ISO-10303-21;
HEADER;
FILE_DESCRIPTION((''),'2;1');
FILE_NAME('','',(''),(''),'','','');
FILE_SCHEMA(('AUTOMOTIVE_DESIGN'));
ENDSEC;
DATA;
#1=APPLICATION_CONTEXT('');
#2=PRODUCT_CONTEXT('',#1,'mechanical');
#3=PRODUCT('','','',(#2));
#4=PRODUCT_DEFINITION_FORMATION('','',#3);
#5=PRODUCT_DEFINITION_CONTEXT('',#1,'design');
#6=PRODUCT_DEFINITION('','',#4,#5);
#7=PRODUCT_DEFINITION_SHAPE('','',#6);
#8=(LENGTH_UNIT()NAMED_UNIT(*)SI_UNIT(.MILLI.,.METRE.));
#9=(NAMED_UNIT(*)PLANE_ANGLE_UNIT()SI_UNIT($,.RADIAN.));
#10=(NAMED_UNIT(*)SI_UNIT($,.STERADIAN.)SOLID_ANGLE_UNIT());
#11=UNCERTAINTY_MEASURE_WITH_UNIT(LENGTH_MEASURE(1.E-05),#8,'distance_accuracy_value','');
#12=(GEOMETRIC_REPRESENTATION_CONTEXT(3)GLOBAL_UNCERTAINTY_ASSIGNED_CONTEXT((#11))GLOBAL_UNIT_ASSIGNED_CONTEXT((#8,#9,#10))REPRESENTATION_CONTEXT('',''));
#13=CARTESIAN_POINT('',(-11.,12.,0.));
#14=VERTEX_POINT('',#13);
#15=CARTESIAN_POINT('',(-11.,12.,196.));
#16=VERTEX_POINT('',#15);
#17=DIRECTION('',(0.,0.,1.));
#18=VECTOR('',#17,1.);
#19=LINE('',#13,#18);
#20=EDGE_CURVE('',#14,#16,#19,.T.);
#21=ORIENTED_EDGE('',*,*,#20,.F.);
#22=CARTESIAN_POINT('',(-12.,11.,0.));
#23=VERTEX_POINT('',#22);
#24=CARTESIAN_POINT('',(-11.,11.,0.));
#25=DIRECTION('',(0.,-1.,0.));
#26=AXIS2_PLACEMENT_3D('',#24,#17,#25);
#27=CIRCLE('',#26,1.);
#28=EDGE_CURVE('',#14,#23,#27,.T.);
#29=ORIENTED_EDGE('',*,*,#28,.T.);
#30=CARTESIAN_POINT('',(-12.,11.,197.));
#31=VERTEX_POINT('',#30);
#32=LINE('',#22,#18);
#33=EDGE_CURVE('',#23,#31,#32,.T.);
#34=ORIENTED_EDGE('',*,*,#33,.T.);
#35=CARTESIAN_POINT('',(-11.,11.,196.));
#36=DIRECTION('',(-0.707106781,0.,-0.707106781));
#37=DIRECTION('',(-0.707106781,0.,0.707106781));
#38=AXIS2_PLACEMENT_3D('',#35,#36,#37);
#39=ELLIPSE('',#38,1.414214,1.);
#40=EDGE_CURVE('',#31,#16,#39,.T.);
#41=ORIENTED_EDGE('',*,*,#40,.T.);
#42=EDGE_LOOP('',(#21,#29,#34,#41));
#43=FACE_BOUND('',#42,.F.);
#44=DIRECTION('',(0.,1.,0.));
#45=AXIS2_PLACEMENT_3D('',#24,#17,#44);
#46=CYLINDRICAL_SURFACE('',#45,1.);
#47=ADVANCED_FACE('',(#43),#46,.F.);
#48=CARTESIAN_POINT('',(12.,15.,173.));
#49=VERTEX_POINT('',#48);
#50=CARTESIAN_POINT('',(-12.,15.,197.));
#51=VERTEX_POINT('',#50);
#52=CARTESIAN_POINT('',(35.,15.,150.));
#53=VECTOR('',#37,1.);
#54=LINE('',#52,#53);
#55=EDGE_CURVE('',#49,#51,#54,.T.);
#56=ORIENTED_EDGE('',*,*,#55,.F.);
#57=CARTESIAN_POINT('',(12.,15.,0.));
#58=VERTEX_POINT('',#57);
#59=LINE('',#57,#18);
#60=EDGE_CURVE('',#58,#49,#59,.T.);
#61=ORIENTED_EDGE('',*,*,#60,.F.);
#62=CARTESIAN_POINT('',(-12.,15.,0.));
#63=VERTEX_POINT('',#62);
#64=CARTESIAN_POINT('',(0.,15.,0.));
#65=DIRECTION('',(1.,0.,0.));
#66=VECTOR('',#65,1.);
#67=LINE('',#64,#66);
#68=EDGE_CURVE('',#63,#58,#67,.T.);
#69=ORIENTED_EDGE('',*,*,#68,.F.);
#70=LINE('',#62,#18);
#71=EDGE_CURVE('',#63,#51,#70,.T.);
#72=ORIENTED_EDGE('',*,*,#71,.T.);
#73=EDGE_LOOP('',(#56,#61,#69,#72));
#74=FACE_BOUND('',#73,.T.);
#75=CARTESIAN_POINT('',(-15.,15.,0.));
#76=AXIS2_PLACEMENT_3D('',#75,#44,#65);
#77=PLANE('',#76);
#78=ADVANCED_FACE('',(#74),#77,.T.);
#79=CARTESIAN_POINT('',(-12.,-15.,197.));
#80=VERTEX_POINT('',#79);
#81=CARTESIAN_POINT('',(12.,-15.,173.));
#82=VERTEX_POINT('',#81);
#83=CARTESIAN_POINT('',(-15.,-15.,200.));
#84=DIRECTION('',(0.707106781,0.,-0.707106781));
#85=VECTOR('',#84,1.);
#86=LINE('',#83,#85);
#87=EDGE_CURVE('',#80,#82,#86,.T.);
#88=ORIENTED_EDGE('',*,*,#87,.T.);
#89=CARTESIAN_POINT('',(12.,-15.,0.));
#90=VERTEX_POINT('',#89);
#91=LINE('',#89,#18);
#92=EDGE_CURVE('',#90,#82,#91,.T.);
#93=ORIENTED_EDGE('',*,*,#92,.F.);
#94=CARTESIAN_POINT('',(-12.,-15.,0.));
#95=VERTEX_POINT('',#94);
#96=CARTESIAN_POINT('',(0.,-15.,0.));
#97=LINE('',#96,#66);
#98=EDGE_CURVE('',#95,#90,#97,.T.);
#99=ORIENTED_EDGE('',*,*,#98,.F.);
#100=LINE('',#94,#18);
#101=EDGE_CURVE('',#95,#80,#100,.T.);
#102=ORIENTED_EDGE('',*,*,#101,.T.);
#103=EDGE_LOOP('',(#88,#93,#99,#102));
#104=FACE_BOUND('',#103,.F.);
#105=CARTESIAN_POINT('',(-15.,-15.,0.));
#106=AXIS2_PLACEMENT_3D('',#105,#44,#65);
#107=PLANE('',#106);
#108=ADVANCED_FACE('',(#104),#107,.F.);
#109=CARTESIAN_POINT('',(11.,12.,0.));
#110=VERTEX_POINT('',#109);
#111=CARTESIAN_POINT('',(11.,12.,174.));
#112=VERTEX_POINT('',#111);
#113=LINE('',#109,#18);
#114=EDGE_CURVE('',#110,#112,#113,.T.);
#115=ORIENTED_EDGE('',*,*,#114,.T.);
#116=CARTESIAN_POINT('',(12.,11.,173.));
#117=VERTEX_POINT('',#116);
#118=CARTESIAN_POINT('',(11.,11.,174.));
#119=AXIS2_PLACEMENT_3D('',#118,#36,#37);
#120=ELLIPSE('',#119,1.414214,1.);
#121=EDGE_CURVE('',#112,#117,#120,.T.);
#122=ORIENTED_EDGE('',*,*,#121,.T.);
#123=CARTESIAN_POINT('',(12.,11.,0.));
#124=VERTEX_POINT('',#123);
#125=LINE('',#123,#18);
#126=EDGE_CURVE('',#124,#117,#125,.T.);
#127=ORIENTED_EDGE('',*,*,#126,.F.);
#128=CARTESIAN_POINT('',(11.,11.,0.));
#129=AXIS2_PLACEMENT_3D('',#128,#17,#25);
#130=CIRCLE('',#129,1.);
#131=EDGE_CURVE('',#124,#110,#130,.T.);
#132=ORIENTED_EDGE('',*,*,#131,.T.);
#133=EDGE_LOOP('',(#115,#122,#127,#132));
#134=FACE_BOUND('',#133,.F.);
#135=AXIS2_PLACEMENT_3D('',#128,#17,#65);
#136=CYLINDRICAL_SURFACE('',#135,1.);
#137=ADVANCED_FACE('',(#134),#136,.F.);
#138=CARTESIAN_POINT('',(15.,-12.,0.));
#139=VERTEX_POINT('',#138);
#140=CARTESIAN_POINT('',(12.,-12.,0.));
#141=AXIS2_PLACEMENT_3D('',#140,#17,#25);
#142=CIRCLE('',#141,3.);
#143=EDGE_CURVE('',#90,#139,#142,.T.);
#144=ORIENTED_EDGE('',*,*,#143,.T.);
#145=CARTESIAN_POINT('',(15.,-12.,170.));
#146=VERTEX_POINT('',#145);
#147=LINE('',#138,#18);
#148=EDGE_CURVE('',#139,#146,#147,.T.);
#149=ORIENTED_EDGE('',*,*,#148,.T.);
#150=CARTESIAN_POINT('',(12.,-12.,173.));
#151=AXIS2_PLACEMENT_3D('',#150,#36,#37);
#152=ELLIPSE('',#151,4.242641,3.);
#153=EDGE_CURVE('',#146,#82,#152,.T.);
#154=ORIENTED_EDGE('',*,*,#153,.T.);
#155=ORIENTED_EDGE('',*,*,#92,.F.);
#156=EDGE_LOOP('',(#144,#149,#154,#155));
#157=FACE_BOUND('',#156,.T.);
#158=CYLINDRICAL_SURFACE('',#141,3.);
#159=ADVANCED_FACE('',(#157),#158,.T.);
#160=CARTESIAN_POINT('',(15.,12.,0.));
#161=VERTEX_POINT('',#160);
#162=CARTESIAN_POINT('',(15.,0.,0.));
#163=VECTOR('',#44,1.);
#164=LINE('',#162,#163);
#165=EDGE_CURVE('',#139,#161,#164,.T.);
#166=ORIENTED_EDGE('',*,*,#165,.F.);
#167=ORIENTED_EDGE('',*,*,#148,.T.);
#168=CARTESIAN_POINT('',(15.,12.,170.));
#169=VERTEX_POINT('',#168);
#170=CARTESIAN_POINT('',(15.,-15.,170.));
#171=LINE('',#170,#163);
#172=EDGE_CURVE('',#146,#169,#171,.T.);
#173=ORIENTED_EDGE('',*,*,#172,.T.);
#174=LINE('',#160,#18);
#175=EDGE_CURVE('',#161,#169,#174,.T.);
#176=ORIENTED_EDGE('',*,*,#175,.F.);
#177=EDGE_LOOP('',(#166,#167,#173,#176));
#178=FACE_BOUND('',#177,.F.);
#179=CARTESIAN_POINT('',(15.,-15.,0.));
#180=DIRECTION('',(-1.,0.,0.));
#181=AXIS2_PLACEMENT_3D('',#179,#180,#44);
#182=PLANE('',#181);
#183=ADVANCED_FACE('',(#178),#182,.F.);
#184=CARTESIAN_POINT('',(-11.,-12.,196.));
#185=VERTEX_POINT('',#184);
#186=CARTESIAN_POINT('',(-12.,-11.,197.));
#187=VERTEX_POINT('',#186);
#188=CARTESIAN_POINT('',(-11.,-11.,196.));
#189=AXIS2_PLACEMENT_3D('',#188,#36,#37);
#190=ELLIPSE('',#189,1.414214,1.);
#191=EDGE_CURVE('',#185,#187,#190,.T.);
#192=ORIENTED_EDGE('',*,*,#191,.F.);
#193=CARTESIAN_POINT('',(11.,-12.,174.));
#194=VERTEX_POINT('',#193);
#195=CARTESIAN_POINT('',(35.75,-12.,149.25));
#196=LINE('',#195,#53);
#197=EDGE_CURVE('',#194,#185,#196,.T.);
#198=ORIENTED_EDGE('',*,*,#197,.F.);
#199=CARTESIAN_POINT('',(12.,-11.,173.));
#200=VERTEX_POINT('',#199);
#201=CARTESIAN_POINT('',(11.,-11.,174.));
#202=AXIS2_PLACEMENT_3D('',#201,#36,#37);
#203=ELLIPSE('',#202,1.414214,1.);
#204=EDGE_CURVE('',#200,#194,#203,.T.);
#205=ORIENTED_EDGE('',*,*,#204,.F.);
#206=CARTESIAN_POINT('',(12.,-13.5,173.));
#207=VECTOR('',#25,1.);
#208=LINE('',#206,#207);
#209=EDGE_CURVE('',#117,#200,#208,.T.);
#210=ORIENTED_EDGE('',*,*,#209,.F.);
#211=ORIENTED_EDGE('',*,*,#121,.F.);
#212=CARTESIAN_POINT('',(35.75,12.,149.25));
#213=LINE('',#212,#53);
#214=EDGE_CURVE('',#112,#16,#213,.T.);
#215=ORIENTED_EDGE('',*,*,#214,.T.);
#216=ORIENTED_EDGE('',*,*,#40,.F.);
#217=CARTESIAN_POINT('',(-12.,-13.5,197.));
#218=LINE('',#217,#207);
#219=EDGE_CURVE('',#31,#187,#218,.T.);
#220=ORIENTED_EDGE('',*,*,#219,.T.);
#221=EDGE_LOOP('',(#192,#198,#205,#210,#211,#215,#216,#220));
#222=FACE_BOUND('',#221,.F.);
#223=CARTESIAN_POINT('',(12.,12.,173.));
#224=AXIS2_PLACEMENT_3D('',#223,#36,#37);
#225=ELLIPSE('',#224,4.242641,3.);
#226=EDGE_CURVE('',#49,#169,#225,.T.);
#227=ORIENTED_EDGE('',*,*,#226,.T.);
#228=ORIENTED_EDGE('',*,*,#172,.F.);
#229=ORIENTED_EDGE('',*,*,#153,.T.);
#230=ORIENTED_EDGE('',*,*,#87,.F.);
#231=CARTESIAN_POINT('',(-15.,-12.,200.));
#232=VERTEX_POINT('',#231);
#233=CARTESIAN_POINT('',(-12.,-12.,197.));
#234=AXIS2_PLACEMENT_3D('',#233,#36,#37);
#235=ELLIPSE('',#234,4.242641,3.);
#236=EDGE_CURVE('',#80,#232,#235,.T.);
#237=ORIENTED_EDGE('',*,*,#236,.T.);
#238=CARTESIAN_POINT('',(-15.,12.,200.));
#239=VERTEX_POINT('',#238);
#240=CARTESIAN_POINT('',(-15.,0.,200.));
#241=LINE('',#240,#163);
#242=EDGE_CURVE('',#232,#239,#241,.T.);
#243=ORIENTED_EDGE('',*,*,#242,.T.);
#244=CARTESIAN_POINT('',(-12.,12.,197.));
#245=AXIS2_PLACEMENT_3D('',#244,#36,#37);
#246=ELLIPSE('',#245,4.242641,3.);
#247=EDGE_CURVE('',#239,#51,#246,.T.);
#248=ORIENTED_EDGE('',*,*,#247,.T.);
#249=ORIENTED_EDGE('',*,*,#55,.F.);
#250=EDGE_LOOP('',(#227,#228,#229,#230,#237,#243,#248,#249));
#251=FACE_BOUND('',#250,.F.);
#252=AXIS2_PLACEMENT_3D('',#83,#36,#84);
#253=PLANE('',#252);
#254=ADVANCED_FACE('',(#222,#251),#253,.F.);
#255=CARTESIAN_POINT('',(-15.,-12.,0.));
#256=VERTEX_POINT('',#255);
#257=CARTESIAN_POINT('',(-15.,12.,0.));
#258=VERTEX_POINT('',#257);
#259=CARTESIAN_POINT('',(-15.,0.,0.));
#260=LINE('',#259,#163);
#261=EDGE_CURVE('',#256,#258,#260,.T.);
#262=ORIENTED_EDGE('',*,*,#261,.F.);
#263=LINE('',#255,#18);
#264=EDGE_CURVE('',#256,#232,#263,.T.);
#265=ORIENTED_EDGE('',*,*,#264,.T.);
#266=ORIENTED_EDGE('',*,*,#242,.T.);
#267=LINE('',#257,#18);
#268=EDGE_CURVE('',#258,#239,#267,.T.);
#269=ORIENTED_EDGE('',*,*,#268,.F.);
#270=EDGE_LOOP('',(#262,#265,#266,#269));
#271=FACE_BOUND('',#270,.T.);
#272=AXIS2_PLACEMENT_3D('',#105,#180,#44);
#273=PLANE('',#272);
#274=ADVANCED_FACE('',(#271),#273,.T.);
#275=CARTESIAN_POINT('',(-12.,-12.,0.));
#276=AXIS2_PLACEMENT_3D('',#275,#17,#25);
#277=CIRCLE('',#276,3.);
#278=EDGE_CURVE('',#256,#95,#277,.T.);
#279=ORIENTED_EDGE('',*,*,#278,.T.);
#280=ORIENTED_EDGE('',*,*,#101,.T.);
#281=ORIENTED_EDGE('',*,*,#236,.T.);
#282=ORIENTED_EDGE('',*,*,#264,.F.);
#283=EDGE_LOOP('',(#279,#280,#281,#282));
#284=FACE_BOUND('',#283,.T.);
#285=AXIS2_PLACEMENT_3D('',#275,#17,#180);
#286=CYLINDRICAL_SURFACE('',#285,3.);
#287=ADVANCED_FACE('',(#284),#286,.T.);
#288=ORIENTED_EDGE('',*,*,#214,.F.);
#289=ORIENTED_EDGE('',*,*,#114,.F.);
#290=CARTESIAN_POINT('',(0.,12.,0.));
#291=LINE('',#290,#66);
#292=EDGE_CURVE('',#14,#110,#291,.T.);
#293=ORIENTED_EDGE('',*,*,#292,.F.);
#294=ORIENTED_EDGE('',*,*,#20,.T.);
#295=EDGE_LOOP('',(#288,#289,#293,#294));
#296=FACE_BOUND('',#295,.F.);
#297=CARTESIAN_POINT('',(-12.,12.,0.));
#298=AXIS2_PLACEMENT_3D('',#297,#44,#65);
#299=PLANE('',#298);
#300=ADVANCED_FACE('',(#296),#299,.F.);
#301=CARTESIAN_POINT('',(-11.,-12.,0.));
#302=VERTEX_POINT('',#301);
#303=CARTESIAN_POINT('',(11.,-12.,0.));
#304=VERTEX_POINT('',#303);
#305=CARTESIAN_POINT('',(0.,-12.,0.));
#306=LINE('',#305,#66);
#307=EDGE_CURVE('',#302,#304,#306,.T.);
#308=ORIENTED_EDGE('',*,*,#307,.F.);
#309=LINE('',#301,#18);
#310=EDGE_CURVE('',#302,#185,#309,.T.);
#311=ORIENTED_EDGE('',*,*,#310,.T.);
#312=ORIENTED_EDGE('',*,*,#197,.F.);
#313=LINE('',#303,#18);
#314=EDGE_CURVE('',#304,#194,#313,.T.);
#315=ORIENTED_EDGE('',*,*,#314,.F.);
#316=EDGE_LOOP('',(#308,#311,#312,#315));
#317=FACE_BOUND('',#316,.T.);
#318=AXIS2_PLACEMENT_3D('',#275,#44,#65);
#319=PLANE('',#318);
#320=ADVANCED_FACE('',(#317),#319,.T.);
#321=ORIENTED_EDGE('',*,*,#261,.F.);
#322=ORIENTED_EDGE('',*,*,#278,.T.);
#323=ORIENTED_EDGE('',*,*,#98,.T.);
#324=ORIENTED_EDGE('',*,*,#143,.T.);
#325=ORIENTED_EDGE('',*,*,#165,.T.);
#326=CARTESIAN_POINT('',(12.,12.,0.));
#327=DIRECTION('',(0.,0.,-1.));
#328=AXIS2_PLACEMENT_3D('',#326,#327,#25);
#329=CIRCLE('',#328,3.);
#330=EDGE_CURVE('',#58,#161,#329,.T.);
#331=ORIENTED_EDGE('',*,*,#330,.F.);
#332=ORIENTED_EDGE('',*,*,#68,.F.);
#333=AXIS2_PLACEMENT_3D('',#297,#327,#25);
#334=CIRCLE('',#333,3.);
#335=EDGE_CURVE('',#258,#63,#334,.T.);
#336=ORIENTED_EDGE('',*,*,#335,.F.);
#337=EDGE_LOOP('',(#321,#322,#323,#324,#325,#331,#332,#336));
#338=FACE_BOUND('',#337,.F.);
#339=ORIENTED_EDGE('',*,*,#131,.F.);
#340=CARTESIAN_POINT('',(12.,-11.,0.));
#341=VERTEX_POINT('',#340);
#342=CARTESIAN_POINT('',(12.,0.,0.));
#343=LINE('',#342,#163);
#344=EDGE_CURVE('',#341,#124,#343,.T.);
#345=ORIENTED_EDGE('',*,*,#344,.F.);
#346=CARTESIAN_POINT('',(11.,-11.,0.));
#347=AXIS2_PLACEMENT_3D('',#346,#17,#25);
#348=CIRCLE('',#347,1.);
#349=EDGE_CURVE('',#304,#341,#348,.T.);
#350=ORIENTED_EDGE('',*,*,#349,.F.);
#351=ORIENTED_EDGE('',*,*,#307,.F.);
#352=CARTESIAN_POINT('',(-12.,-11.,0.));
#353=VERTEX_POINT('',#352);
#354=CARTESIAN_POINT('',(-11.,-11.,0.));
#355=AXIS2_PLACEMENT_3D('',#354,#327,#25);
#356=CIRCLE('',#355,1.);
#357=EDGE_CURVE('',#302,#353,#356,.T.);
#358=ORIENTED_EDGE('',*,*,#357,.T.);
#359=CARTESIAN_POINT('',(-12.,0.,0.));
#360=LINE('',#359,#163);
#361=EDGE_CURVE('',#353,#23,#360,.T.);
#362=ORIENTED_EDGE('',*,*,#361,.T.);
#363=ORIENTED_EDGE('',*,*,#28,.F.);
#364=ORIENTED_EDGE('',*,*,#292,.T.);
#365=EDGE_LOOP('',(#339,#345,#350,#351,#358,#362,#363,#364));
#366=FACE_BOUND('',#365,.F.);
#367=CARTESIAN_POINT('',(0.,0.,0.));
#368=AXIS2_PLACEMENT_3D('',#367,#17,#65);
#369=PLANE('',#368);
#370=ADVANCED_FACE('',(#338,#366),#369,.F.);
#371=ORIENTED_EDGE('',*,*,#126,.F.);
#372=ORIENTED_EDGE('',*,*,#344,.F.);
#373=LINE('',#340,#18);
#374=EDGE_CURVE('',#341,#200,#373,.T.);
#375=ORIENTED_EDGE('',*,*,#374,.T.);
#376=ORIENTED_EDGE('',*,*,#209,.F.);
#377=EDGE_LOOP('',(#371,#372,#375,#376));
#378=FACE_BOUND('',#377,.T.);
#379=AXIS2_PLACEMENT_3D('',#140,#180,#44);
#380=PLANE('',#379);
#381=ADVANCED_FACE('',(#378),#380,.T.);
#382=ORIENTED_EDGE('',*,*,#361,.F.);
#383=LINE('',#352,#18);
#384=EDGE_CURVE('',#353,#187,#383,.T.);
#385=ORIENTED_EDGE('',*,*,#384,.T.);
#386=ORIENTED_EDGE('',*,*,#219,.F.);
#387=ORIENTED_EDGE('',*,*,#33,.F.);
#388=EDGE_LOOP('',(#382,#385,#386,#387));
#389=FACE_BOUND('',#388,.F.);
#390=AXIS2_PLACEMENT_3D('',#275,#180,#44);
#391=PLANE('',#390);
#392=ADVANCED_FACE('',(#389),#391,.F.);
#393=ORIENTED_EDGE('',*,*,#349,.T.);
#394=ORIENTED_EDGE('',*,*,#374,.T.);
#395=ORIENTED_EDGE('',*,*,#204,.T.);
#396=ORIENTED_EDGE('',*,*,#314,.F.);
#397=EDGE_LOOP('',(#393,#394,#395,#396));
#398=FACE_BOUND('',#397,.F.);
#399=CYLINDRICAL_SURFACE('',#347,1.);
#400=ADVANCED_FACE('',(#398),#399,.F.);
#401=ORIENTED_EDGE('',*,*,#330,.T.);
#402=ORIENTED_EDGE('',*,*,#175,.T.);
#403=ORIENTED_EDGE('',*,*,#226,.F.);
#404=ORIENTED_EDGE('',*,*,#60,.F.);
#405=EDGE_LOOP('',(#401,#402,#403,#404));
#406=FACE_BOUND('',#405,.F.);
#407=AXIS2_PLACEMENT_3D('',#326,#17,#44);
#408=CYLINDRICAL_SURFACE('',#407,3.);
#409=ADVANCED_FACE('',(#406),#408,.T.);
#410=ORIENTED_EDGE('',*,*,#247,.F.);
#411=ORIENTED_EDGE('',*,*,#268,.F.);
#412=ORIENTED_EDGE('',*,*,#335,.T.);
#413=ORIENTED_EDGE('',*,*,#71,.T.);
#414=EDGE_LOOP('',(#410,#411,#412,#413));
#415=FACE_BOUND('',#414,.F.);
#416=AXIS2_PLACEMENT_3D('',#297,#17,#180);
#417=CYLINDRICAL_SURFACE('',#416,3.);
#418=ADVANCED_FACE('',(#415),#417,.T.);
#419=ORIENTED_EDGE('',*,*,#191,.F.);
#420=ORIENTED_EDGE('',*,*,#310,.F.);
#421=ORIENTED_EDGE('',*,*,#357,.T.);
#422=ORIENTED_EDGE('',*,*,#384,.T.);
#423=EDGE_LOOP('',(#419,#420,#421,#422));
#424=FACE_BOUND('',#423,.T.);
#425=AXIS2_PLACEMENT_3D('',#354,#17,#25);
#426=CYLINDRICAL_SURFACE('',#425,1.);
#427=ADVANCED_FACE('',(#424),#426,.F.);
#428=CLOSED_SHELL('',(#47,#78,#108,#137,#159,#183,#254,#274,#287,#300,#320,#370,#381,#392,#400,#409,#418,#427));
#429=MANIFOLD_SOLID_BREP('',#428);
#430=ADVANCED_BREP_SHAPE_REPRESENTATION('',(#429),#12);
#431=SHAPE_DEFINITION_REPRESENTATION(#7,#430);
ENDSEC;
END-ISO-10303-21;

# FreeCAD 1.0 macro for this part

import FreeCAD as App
import Part
import Sketcher
Q = App.Units.Quantity


def edges_at(feature, points):
    """Names of the edges that pass closest to the given points."""
    edges = feature.Shape.Edges
    near = lambda p: min(range(len(edges)), key=lambda i: edges[i].distToShape(Part.Vertex(*p))[0])
    return sorted({f"Edge{near(p) + 1}" for p in points})

doc = App.newDocument("Part")
params = doc.addObject("Spreadsheet::Sheet", "Params")
for row, (alias, value) in enumerate([
    ("sketch1_width", "30 mm"),
    ("sketch1_width2", "24 mm"),
    ("pad1_length", "200 mm"),
    ("fillet_radius", "1 mm"),
    ("fillet2_radius", "3 mm"),
    ("sketch2_width", "30 mm"),
], start=1):
    params.set(f"A{row}", alias)
    params.set(f"B{row}", "=" + value)
    params.setAlias(f"B{row}", alias)

body = doc.addObject("PartDesign::Body", "Body")

# Sketch on XY plane
sketch1 = body.newObject("Sketcher::SketchObject", "Sketch")
sketch1.AttachmentSupport = (doc.getObject("XY_Plane"), [""])
sketch1.MapMode = "FlatFace"
sketch1.addGeometry([
    Part.LineSegment(App.Vector(-15, 15, 0), App.Vector(-15, -15, 0)),  # 0
    Part.LineSegment(App.Vector(-15, -15, 0), App.Vector(15, -15, 0)),  # 1
    Part.LineSegment(App.Vector(15, -15, 0), App.Vector(15, 15, 0)),  # 2
    Part.LineSegment(App.Vector(15, 15, 0), App.Vector(-15, 15, 0)),  # 3
    Part.LineSegment(App.Vector(12, -12, 0), App.Vector(-12, -12, 0)),  # 4
    Part.LineSegment(App.Vector(-12, -12, 0), App.Vector(-12, 12, 0)),  # 5
    Part.LineSegment(App.Vector(-12, 12, 0), App.Vector(12, 12, 0)),  # 6
    Part.LineSegment(App.Vector(12, 12, 0), App.Vector(12, -12, 0)),  # 7
], False)
sketch1.addConstraint([
    Sketcher.Constraint("Coincident", 0, 2, 1, 1),
    Sketcher.Constraint("Coincident", 1, 2, 2, 1),
    Sketcher.Constraint("Coincident", 2, 2, 3, 1),
    Sketcher.Constraint("Coincident", 3, 2, 0, 1),
    Sketcher.Constraint("Coincident", 4, 2, 5, 1),
    Sketcher.Constraint("Coincident", 5, 2, 6, 1),
    Sketcher.Constraint("Coincident", 6, 2, 7, 1),
    Sketcher.Constraint("Coincident", 7, 2, 4, 1),
    Sketcher.Constraint("Vertical", 0),
    Sketcher.Constraint("Horizontal", 1),
    Sketcher.Constraint("Vertical", 2),
    Sketcher.Constraint("Horizontal", 3),
    Sketcher.Constraint("Horizontal", 4),
    Sketcher.Constraint("Vertical", 5),
    Sketcher.Constraint("Horizontal", 6),
    Sketcher.Constraint("Vertical", 7),
    Sketcher.Constraint("Symmetric", 0, 2, 2, 2, -1, 1),
    Sketcher.Constraint("Symmetric", 4, 2, 6, 2, -1, 1),
    Sketcher.Constraint("Equal", 3, 0),
    Sketcher.Constraint("Equal", 6, 5),
    Sketcher.Constraint("DistanceX", 1, 1, 1, 2, Q("30 mm")),
    Sketcher.Constraint("DistanceX", 4, 2, 4, 1, Q("24 mm")),
])
sketch1.setExpression("Constraints[20]", "Params.sketch1_width")
sketch1.setExpression("Constraints[21]", "Params.sketch1_width2")
pad1 = body.newObject("PartDesign::Pad", "Pad")
pad1.Profile = sketch1
pad1.setExpression("Length", "Params.pad1_length")
doc.recompute()

fillet = body.newObject("PartDesign::Fillet", "Fillet")
fillet.Base = (pad1, edges_at(pad1, [
    (-12, -12, 100),
    (-12, 12, 100),
    (12, 12, 100),
    (12, -12, 100),
]))
fillet.setExpression("Radius", "Params.fillet_radius")
doc.recompute()

fillet2 = body.newObject("PartDesign::Fillet", "Fillet001")
fillet2.Base = (fillet, edges_at(fillet, [
    (-15, 15, 100),
    (-15, -15, 100),
    (15, 15, 100),
    (15, -15, 100),
]))
fillet2.setExpression("Radius", "Params.fillet2_radius")

# Sketch on XZ plane
sketch2 = body.newObject("Sketcher::SketchObject", "Sketch001")
sketch2.AttachmentSupport = (doc.getObject("XZ_Plane"), [""])
sketch2.MapMode = "FlatFace"
sketch2.AttachmentOffset = App.Placement(App.Vector(0, 0, 15), App.Rotation())
sketch2.addGeometry([
    Part.LineSegment(App.Vector(-15, 200, 0), App.Vector(15, 170, 0)),
    Part.LineSegment(App.Vector(15, 170, 0), App.Vector(15, 200, 0)),
    Part.LineSegment(App.Vector(15, 200, 0), App.Vector(-15, 200, 0)),
], False)
sketch2.addConstraint([
    Sketcher.Constraint("Coincident", 0, 2, 1, 1),
    Sketcher.Constraint("Coincident", 1, 2, 2, 1),
    Sketcher.Constraint("Coincident", 2, 2, 0, 1),
    Sketcher.Constraint("Vertical", 1),
    Sketcher.Constraint("Horizontal", 2),
    Sketcher.Constraint("Equal", 2, 1),
    Sketcher.Constraint("DistanceX", 2, 2, 2, 1, Q("30 mm")),
    Sketcher.Constraint("DistanceX", -1, 1, 0, 2, Q("15 mm")),
    Sketcher.Constraint("DistanceY", -1, 1, 0, 2, Q("170 mm")),
])
sketch2.setExpression("Constraints[6]", "Params.sketch2_width")
pocket1 = body.newObject("PartDesign::Pocket", "Pocket")
pocket1.Profile = sketch2
pocket1.Type = "ThroughAll"

doc.recompute()
